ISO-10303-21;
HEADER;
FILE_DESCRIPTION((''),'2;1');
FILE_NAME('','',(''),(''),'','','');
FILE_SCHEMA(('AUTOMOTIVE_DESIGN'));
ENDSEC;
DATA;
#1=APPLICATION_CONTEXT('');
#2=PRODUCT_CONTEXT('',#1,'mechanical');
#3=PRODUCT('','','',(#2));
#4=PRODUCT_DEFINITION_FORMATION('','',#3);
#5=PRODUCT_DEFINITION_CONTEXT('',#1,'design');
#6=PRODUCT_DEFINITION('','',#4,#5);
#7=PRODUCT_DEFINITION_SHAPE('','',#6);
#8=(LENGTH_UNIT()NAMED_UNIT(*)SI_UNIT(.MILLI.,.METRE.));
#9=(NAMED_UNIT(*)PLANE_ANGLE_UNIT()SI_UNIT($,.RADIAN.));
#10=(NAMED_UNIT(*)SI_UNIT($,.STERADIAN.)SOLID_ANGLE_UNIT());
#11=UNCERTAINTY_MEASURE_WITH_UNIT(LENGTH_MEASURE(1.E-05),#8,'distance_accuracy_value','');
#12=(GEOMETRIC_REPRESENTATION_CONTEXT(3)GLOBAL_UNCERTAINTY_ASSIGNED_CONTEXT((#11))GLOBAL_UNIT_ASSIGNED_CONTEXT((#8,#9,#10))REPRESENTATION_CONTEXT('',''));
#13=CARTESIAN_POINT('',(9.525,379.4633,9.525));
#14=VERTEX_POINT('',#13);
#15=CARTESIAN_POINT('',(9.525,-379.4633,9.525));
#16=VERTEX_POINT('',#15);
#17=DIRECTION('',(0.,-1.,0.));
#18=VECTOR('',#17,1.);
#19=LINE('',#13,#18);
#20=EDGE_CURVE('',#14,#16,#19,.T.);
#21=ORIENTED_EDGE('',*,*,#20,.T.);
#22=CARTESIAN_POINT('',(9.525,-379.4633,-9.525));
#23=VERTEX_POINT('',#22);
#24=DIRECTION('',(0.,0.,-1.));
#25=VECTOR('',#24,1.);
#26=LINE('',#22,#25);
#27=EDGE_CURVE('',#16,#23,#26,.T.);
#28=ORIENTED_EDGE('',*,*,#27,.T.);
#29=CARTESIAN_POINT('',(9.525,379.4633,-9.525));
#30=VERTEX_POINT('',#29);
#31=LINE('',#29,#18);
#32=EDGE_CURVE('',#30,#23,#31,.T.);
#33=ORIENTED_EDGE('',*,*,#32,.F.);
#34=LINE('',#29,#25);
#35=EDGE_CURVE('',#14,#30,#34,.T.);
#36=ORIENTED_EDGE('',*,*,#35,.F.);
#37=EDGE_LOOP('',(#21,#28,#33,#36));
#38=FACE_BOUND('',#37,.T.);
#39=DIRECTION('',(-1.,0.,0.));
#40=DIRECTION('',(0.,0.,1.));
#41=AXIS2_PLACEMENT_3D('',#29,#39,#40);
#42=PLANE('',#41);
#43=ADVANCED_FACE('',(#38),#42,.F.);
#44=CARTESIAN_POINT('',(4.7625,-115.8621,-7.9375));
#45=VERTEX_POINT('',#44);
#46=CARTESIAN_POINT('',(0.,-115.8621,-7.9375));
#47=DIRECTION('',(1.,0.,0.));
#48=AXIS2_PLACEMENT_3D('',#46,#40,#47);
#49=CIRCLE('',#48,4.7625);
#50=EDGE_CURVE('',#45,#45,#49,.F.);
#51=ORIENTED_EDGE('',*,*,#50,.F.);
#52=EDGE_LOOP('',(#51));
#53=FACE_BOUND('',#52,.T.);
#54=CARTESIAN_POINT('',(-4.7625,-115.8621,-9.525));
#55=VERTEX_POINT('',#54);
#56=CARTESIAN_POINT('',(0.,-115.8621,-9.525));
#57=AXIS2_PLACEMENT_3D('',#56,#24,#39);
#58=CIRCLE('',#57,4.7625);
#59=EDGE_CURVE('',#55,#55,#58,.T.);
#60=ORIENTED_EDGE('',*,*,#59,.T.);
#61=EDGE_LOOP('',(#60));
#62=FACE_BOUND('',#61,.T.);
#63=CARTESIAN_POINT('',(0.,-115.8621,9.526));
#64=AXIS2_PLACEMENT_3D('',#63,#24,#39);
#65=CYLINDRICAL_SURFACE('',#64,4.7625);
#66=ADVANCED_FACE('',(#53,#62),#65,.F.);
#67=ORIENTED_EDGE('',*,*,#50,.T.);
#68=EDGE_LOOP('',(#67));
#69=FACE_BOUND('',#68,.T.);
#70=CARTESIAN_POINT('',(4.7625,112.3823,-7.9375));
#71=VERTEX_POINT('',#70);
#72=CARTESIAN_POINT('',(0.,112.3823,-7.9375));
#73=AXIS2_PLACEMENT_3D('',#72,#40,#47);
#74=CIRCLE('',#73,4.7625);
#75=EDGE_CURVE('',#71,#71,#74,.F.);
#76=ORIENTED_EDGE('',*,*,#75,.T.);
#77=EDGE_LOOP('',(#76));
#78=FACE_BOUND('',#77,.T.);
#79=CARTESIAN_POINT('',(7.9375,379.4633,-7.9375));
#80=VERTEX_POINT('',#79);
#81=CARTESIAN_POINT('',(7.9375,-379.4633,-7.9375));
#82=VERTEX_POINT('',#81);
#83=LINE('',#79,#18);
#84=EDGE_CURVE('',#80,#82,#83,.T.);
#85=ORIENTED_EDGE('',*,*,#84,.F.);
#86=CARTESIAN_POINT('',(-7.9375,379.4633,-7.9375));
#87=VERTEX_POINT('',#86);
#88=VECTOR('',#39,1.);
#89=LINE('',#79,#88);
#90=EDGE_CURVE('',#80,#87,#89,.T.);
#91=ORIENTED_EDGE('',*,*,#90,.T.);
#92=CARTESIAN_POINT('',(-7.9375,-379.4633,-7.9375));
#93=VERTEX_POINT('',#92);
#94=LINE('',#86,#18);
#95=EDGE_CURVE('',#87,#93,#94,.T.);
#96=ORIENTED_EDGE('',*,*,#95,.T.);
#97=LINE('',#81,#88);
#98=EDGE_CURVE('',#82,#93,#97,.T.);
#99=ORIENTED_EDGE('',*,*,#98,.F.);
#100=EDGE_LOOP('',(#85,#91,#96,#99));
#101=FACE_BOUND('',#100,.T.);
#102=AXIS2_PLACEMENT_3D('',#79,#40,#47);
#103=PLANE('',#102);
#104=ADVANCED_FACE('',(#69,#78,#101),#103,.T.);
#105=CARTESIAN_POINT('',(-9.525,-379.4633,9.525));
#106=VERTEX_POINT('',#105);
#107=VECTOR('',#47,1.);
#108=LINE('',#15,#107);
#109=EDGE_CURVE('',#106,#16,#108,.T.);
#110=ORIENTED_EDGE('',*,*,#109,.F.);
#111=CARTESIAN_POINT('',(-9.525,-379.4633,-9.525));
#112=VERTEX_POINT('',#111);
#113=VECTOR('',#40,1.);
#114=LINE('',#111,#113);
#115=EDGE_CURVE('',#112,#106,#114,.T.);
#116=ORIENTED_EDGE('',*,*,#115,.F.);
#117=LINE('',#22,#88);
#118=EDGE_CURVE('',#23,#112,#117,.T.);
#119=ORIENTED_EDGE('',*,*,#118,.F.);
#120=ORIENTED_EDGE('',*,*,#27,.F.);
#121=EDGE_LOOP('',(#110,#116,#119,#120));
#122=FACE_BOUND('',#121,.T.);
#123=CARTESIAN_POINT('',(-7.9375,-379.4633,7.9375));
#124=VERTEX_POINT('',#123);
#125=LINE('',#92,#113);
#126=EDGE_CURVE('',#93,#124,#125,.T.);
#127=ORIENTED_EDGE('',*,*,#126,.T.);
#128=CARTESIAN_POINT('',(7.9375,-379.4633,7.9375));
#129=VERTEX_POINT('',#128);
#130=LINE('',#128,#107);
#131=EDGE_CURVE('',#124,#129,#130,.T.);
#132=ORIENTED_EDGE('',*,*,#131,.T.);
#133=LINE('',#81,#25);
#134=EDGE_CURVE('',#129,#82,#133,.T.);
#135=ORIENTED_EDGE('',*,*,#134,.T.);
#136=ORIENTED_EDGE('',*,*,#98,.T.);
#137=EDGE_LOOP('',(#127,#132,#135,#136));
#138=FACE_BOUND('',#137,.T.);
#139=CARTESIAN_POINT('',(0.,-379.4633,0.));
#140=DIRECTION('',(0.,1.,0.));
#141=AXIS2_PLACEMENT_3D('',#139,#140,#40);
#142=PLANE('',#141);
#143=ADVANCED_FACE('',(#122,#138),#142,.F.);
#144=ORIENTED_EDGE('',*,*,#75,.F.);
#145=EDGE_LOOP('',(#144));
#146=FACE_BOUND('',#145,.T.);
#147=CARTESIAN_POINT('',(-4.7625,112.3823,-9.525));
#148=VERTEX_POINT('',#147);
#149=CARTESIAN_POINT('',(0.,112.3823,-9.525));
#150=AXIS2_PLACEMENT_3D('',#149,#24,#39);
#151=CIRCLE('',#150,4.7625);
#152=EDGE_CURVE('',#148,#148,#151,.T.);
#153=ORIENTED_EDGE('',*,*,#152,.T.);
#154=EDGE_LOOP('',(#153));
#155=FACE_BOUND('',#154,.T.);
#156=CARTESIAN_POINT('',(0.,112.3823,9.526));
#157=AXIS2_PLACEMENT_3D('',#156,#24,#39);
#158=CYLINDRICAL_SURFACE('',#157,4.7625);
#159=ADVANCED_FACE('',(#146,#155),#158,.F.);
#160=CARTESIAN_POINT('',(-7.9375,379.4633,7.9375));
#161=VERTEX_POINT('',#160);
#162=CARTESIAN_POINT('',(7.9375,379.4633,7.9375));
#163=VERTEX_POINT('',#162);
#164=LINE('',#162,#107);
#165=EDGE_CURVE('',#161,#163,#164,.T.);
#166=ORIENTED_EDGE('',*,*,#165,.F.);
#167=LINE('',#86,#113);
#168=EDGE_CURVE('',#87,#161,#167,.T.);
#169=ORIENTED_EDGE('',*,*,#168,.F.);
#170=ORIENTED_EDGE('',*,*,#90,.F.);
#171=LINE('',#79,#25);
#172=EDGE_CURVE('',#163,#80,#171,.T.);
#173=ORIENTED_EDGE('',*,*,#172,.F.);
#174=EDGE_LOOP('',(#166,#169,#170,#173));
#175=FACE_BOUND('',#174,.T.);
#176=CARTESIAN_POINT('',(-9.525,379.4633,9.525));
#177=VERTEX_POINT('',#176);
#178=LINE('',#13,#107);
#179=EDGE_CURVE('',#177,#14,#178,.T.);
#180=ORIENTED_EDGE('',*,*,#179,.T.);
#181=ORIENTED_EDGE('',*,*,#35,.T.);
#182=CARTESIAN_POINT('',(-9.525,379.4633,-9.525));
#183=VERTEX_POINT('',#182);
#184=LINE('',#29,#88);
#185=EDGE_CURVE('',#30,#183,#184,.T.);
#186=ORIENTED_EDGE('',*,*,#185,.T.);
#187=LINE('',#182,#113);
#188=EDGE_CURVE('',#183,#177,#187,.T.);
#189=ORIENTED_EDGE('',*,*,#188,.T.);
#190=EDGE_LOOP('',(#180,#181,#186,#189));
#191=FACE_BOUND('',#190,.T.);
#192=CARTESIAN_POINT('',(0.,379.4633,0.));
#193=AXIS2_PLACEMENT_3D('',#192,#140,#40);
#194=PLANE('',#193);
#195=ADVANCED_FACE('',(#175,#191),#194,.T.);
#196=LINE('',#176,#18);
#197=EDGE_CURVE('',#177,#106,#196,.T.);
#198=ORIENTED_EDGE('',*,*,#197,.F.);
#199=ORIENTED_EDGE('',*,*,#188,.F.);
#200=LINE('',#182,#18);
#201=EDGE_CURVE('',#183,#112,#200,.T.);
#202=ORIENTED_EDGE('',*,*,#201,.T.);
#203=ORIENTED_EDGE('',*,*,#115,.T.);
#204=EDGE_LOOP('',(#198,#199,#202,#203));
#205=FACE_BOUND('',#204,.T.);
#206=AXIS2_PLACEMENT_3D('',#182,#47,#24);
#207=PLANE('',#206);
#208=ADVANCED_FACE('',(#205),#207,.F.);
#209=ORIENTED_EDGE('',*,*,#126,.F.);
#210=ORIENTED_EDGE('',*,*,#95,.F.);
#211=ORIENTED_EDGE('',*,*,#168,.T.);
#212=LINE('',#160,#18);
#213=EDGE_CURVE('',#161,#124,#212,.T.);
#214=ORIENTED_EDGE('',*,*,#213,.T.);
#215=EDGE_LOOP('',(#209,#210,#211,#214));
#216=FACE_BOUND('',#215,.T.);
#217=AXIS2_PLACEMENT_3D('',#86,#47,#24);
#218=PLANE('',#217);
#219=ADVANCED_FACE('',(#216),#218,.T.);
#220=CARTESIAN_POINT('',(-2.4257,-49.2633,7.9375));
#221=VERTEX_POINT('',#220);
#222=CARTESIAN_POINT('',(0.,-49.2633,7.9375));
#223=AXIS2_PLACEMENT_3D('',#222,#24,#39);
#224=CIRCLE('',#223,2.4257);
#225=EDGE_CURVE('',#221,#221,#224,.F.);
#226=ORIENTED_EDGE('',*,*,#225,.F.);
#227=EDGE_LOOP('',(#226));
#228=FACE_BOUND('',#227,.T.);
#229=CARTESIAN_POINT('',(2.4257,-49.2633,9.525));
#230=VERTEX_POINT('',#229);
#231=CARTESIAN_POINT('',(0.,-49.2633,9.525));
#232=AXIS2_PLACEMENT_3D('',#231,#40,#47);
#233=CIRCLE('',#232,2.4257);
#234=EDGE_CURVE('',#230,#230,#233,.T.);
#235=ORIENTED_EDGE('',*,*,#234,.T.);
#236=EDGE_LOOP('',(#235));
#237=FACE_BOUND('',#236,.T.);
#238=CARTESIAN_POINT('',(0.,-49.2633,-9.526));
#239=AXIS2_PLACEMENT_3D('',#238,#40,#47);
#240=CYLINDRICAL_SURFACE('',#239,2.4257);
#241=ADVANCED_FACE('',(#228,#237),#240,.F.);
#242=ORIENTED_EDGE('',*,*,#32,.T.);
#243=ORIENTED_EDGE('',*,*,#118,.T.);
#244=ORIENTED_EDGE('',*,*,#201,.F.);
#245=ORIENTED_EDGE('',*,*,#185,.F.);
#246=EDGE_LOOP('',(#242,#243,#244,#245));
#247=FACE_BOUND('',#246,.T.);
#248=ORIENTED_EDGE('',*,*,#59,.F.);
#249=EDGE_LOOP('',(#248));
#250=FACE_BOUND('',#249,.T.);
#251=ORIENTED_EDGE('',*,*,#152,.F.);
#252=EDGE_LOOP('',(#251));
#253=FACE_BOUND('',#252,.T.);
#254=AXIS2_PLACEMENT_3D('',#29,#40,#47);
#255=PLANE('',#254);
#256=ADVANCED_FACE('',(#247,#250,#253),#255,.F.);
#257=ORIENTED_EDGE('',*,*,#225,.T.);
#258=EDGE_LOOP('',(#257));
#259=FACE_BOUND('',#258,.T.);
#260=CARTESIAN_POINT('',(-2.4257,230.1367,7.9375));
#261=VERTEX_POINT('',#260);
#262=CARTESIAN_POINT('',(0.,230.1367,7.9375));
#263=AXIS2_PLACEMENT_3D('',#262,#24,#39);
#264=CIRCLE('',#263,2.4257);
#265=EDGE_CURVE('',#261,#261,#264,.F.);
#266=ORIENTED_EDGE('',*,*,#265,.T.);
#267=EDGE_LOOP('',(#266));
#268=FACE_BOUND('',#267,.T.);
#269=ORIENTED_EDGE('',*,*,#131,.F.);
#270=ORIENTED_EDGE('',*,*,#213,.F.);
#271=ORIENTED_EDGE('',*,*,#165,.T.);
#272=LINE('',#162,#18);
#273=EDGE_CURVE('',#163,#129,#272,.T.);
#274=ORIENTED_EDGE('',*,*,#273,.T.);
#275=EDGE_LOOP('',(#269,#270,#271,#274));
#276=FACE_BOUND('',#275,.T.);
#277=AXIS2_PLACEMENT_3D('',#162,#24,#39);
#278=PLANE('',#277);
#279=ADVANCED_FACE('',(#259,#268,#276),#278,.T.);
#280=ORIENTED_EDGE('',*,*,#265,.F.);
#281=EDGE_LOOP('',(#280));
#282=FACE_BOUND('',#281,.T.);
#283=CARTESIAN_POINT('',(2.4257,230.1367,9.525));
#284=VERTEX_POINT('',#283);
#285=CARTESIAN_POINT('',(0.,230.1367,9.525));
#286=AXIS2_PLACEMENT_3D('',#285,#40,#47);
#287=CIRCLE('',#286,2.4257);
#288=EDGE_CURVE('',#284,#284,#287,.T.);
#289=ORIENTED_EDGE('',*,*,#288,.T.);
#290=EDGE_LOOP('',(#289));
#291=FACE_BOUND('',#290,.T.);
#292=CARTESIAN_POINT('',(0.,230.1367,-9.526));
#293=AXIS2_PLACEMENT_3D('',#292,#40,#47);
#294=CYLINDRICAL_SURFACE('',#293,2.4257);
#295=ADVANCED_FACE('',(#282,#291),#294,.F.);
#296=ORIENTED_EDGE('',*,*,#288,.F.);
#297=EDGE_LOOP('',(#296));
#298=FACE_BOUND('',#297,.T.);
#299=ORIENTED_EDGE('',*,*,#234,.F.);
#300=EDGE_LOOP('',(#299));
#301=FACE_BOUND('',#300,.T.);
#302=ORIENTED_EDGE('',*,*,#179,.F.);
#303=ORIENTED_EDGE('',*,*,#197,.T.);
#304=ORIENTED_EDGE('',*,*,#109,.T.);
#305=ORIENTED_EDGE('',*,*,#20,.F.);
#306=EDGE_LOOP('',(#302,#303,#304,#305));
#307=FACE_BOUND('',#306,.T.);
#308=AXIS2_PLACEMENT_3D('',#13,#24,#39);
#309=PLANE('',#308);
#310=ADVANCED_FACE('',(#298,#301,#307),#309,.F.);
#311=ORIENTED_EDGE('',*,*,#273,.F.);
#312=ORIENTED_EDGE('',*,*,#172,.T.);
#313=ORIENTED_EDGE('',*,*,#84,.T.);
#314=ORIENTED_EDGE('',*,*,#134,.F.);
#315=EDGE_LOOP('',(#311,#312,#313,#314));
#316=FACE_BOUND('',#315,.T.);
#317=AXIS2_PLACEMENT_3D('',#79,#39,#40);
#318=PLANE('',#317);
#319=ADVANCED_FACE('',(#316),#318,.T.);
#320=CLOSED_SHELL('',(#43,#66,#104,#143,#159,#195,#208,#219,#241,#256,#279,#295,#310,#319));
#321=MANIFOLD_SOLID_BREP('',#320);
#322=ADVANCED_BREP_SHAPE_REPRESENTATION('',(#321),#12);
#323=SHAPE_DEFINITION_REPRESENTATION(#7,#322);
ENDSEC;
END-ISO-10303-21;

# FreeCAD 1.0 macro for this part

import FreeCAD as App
import Part
import Sketcher
from FreeCAD import Vector
Q = App.Units.Quantity

doc = App.newDocument("Part")
body = doc.addObject("PartDesign::Body", "Body")

# Sketch on XZ plane
sketch1 = body.newObject("Sketcher::SketchObject", "Sketch")
sketch1.AttachmentSupport = (doc.getObject("XZ_Plane"), [""])
sketch1.MapMode = "FlatFace"
sketch1.addGeometry(Part.LineSegment(Vector(10, -10, 0), Vector(-10, -10, 0)), False)
sketch1.addGeometry(Part.LineSegment(Vector(-10, -10, 0), Vector(-10, 10, 0)), False)
sketch1.addGeometry(Part.LineSegment(Vector(-10, 10, 0), Vector(10, 10, 0)), False)
sketch1.addGeometry(Part.LineSegment(Vector(10, 10, 0), Vector(10, -10, 0)), False)
sketch1.addGeometry(Part.LineSegment(Vector(-8, 8, 0), Vector(-8, -8, 0)), False)
sketch1.addGeometry(Part.LineSegment(Vector(-8, -8, 0), Vector(8, -8, 0)), False)
sketch1.addGeometry(Part.LineSegment(Vector(8, -8, 0), Vector(8, 8, 0)), False)
sketch1.addGeometry(Part.LineSegment(Vector(8, 8, 0), Vector(-8, 8, 0)), False)
sketch1.addConstraint(Sketcher.Constraint("Coincident", 0, 2, 1, 1))
sketch1.addConstraint(Sketcher.Constraint("Coincident", 1, 2, 2, 1))
sketch1.addConstraint(Sketcher.Constraint("Coincident", 2, 2, 3, 1))
sketch1.addConstraint(Sketcher.Constraint("Coincident", 3, 2, 0, 1))
sketch1.addConstraint(Sketcher.Constraint("Coincident", 4, 2, 5, 1))
sketch1.addConstraint(Sketcher.Constraint("Coincident", 5, 2, 6, 1))
sketch1.addConstraint(Sketcher.Constraint("Coincident", 6, 2, 7, 1))
sketch1.addConstraint(Sketcher.Constraint("Coincident", 7, 2, 4, 1))
sketch1.addConstraint(Sketcher.Constraint("Horizontal", 0))
sketch1.addConstraint(Sketcher.Constraint("Vertical", 1))
sketch1.addConstraint(Sketcher.Constraint("Horizontal", 2))
sketch1.addConstraint(Sketcher.Constraint("Vertical", 3))
sketch1.addConstraint(Sketcher.Constraint("Vertical", 4))
sketch1.addConstraint(Sketcher.Constraint("Horizontal", 5))
sketch1.addConstraint(Sketcher.Constraint("Vertical", 6))
sketch1.addConstraint(Sketcher.Constraint("Horizontal", 7))
sketch1.addConstraint(Sketcher.Constraint("Symmetric", 0, 2, 2, 2, -1, 1))
sketch1.addConstraint(Sketcher.Constraint("Symmetric", 4, 2, 6, 2, -1, 1))
sketch1.addConstraint(Sketcher.Constraint("Equal", 2, 1))
sketch1.addConstraint(Sketcher.Constraint("Equal", 7, 4))
sketch1.addConstraint(Sketcher.Constraint("DistanceX", 0, 2, 0, 1, Q("0.75 in")))
sketch1.addConstraint(Sketcher.Constraint("DistanceX", 5, 1, 5, 2, Q("0.625 in")))
pad1 = body.newObject("PartDesign::Pad", "Pad")
pad1.Profile = sketch1
pad1.Length = Q("29.879 in")
pad1.Midplane = True

# Sketch on XY plane
sketch2 = body.newObject("Sketcher::SketchObject", "Sketch001")
sketch2.AttachmentSupport = (doc.getObject("XY_Plane"), [""])
sketch2.MapMode = "FlatFace"
sketch2.AttachmentOffset = App.Placement(Vector(0, 0, 0.375 * 25.4), App.Rotation())
sketch2.addGeometry(Part.Circle(Vector(0, -49.3, 0), Vector(0, 0, 1), 2.4), False)
sketch2.addConstraint(Sketcher.Constraint("PointOnObject", 0, 3, -2))
sketch2.addConstraint(Sketcher.Constraint("Diameter", 0, Q("0.191 in")))
sketch2.addConstraint(Sketcher.Constraint("DistanceY", 0, 3, -1, 1, Q("1.9395 in")))
pocket1 = body.newObject("PartDesign::Pocket", "Pocket")
pocket1.Profile = sketch2
pocket1.Type = "UpToFirst"

# Sketch on XY plane
sketch3 = body.newObject("Sketcher::SketchObject", "Sketch002")
sketch3.AttachmentSupport = (doc.getObject("XY_Plane"), [""])
sketch3.MapMode = "FlatFace"
sketch3.AttachmentOffset = App.Placement(Vector(0, 0, 0.375 * 25.4), App.Rotation())
sketch3.addGeometry(Part.Circle(Vector(0, 230.1, 0), Vector(0, 0, 1), 2.4), False)
sketch3.addConstraint(Sketcher.Constraint("PointOnObject", 0, 3, -2))
sketch3.addConstraint(Sketcher.Constraint("Diameter", 0, Q("0.191 in")))
sketch3.addConstraint(Sketcher.Constraint("DistanceY", -1, 1, 0, 3, Q("9.0605 in")))
pocket2 = body.newObject("PartDesign::Pocket", "Pocket001")
pocket2.Profile = sketch3
pocket2.Type = "UpToFirst"

# Sketch on XY plane
sketch4 = body.newObject("Sketcher::SketchObject", "Sketch003")
sketch4.AttachmentSupport = (doc.getObject("XY_Plane"), [""])
sketch4.MapMode = "FlatFace"
sketch4.AttachmentOffset = App.Placement(Vector(0, 0, -0.375 * 25.4), App.Rotation())
sketch4.addGeometry(Part.Circle(Vector(0, 112.4, 0), Vector(0, 0, 1), 4.8), False)
sketch4.addConstraint(Sketcher.Constraint("PointOnObject", 0, 3, -2))
sketch4.addConstraint(Sketcher.Constraint("Diameter", 0, Q("0.375 in")))
sketch4.addConstraint(Sketcher.Constraint("DistanceY", -1, 1, 0, 3, Q("4.4245 in")))
pocket3 = body.newObject("PartDesign::Pocket", "Pocket002")
pocket3.Profile = sketch4
pocket3.Type = "UpToFirst"
pocket3.Reversed = True

# Sketch on XY plane
sketch5 = body.newObject("Sketcher::SketchObject", "Sketch004")
sketch5.AttachmentSupport = (doc.getObject("XY_Plane"), [""])
sketch5.MapMode = "FlatFace"
sketch5.AttachmentOffset = App.Placement(Vector(0, 0, -0.375 * 25.4), App.Rotation())
sketch5.addGeometry(Part.Circle(Vector(0, -115.9, 0), Vector(0, 0, 1), 4.8), False)
sketch5.addConstraint(Sketcher.Constraint("PointOnObject", 0, 3, -2))
sketch5.addConstraint(Sketcher.Constraint("Diameter", 0, Q("0.375 in")))
sketch5.addConstraint(Sketcher.Constraint("DistanceY", 0, 3, -1, 1, Q("4.5615 in")))
pocket4 = body.newObject("PartDesign::Pocket", "Pocket003")
pocket4.Profile = sketch5
pocket4.Type = "UpToFirst"
pocket4.Reversed = True

doc.recompute()
